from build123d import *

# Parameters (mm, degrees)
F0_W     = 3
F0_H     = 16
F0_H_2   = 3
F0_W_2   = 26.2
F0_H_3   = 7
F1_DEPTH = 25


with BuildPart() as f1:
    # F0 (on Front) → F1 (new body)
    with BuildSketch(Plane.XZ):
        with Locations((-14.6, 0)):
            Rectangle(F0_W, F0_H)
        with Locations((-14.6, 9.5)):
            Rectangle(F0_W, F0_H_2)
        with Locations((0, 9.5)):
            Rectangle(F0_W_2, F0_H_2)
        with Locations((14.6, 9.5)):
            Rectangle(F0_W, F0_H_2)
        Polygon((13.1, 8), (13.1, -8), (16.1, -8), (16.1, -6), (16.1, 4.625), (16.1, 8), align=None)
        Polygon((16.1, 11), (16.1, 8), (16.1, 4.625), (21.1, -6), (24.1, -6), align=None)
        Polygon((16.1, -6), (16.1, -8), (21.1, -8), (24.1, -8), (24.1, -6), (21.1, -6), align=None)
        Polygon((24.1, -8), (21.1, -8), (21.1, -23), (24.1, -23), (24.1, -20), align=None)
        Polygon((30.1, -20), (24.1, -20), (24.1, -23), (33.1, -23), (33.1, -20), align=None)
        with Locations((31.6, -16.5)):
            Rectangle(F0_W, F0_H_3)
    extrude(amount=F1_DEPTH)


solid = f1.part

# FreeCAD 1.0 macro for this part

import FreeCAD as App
import Part
import Sketcher
from FreeCAD import Vector
Q = App.Units.Quantity


def add_polygon(sketch, points):
    """Adds a closed chain of lines whose ends are joined by coincident constraints."""
    first, n = sketch.GeometryCount, len(points)
    for a, b in zip(points, points[1:] + points[:1]):
        sketch.addGeometry(Part.LineSegment(App.Vector(*a, 0), App.Vector(*b, 0)), False)
    for i in range(n):
        sketch.addConstraint(Sketcher.Constraint("Coincident", first + i, 2, first + (i + 1) % n, 1))

doc = App.newDocument("Part")
body = doc.addObject("PartDesign::Body", "Body")

# Sketch on XZ plane
sketch1 = body.newObject("Sketcher::SketchObject", "Sketch")
sketch1.AttachmentSupport = (doc.getObject("XZ_Plane"), [""])
sketch1.MapMode = "FlatFace"
add_polygon(sketch1, [(-16.1, -8), (-13.1, -8), (-13.1, 8), (13.1, 8), (13.1, -8), (21.1, -8), (21.1, -23), (33.1, -23), (33.1, -13), (30.1, -13), (30.1, -20), (24.1, -20), (24.1, -6), (16.1, 11), (-16.1, 11)])  # lines 0-14
add_polygon(sketch1, [(16.1, -6), (16.1, 4.625), (21.1, -6)])  # lines 15-17
sketch1.addConstraint(Sketcher.Constraint("Horizontal", 0))
sketch1.addConstraint(Sketcher.Constraint("Vertical", 1))
sketch1.addConstraint(Sketcher.Constraint("Horizontal", 2))
sketch1.addConstraint(Sketcher.Constraint("Vertical", 3))
sketch1.addConstraint(Sketcher.Constraint("Horizontal", 4))
sketch1.addConstraint(Sketcher.Constraint("Vertical", 5))
sketch1.addConstraint(Sketcher.Constraint("Horizontal", 6))
sketch1.addConstraint(Sketcher.Constraint("Vertical", 7))
sketch1.addConstraint(Sketcher.Constraint("Horizontal", 8))
sketch1.addConstraint(Sketcher.Constraint("Vertical", 9))
sketch1.addConstraint(Sketcher.Constraint("Horizontal", 10))
sketch1.addConstraint(Sketcher.Constraint("Vertical", 11))
sketch1.addConstraint(Sketcher.Constraint("Horizontal", 13))
sketch1.addConstraint(Sketcher.Constraint("Vertical", 14))
sketch1.addConstraint(Sketcher.Constraint("Vertical", 15))
sketch1.addConstraint(Sketcher.Constraint("Horizontal", 17))
sketch1.addConstraint(Sketcher.Constraint("Symmetric", 0, 2, 2, 2, -1, 1))
sketch1.addConstraint(Sketcher.Constraint("Parallel", 12, 16))
sketch1.addConstraint(Sketcher.Constraint("Horizontal", 0, 2, 3, 2))
sketch1.addConstraint(Sketcher.Constraint("Horizontal", 11, 2, 16, 2))
sketch1.addConstraint(Sketcher.Constraint("Vertical", 12, 2, 15, 2))
sketch1.addConstraint(Sketcher.Constraint("Vertical", 5, 2, 16, 2))
sketch1.addConstraint(Sketcher.Constraint("Equal", 0, 8))
sketch1.addConstraint(Sketcher.Constraint("DistanceX", 0, 1, 0, 2, Q("3 mm")))
sketch1.addConstraint(Sketcher.Constraint("DistanceX", 4, 1, 4, 2, Q("8 mm")))
sketch1.addConstraint(Sketcher.Constraint("DistanceX", 6, 1, 6, 2, Q("12 mm")))
sketch1.addConstraint(Sketcher.Constraint("DistanceX", 10, 2, 10, 1, Q("6 mm")))
sketch1.addConstraint(Sketcher.Constraint("DistanceX", 17, 2, 17, 1, Q("5 mm")))
sketch1.addConstraint(Sketcher.Constraint("DistanceY", 1, 1, 1, 2, Q("16 mm")))
sketch1.addConstraint(Sketcher.Constraint("DistanceY", 5, 2, 5, 1, Q("15 mm")))
sketch1.addConstraint(Sketcher.Constraint("DistanceY", 7, 1, 7, 2, Q("10 mm")))
sketch1.addConstraint(Sketcher.Constraint("DistanceY", 9, 2, 9, 1, Q("7 mm")))
sketch1.addConstraint(Sketcher.Constraint("DistanceY", 11, 1, 11, 2, Q("14 mm")))
sketch1.addConstraint(Sketcher.Constraint("DistanceY", 14, 2, 14, 1, Q("19 mm")))
sketch1.addConstraint(Sketcher.Constraint("DistanceX", 2, 1, 2, 2, Q("26.2 mm")))
pad1 = body.newObject("PartDesign::Pad", "Pad")
pad1.Profile = sketch1
pad1.Length = 25

doc.recompute()
